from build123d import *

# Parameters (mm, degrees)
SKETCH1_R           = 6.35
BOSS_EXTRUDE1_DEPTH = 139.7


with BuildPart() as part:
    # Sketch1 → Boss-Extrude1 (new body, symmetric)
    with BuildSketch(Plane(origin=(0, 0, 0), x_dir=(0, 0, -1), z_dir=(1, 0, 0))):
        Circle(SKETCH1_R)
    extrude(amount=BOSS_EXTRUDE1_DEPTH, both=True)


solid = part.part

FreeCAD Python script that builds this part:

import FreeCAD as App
import Part
import Sketcher

V = App.Vector
Q = App.Units.Quantity

doc = App.newDocument("Part")
body = doc.addObject("PartDesign::Body", "Body")

# Sketch on YZ plane
sketch1 = body.newObject("Sketcher::SketchObject", "Sketch")
sketch1.AttachmentSupport = (doc.getObject("YZ_Plane"), [""])
sketch1.MapMode = "FlatFace"
sketch1.addGeometry(Part.Circle(V(0, 0, 0), V(0, 0, 1), 6), False)
sketch1.addConstraint([
    Sketcher.Constraint("Coincident", 0, 3, -1, 1),
    Sketcher.Constraint("Diameter", 0, Q("0.5 in")),
])
pad1 = body.newObject("PartDesign::Pad", "Pad")
pad1.Profile = sketch1
pad1.Length = Q("11 in")
pad1.Midplane = True

doc.recompute()
